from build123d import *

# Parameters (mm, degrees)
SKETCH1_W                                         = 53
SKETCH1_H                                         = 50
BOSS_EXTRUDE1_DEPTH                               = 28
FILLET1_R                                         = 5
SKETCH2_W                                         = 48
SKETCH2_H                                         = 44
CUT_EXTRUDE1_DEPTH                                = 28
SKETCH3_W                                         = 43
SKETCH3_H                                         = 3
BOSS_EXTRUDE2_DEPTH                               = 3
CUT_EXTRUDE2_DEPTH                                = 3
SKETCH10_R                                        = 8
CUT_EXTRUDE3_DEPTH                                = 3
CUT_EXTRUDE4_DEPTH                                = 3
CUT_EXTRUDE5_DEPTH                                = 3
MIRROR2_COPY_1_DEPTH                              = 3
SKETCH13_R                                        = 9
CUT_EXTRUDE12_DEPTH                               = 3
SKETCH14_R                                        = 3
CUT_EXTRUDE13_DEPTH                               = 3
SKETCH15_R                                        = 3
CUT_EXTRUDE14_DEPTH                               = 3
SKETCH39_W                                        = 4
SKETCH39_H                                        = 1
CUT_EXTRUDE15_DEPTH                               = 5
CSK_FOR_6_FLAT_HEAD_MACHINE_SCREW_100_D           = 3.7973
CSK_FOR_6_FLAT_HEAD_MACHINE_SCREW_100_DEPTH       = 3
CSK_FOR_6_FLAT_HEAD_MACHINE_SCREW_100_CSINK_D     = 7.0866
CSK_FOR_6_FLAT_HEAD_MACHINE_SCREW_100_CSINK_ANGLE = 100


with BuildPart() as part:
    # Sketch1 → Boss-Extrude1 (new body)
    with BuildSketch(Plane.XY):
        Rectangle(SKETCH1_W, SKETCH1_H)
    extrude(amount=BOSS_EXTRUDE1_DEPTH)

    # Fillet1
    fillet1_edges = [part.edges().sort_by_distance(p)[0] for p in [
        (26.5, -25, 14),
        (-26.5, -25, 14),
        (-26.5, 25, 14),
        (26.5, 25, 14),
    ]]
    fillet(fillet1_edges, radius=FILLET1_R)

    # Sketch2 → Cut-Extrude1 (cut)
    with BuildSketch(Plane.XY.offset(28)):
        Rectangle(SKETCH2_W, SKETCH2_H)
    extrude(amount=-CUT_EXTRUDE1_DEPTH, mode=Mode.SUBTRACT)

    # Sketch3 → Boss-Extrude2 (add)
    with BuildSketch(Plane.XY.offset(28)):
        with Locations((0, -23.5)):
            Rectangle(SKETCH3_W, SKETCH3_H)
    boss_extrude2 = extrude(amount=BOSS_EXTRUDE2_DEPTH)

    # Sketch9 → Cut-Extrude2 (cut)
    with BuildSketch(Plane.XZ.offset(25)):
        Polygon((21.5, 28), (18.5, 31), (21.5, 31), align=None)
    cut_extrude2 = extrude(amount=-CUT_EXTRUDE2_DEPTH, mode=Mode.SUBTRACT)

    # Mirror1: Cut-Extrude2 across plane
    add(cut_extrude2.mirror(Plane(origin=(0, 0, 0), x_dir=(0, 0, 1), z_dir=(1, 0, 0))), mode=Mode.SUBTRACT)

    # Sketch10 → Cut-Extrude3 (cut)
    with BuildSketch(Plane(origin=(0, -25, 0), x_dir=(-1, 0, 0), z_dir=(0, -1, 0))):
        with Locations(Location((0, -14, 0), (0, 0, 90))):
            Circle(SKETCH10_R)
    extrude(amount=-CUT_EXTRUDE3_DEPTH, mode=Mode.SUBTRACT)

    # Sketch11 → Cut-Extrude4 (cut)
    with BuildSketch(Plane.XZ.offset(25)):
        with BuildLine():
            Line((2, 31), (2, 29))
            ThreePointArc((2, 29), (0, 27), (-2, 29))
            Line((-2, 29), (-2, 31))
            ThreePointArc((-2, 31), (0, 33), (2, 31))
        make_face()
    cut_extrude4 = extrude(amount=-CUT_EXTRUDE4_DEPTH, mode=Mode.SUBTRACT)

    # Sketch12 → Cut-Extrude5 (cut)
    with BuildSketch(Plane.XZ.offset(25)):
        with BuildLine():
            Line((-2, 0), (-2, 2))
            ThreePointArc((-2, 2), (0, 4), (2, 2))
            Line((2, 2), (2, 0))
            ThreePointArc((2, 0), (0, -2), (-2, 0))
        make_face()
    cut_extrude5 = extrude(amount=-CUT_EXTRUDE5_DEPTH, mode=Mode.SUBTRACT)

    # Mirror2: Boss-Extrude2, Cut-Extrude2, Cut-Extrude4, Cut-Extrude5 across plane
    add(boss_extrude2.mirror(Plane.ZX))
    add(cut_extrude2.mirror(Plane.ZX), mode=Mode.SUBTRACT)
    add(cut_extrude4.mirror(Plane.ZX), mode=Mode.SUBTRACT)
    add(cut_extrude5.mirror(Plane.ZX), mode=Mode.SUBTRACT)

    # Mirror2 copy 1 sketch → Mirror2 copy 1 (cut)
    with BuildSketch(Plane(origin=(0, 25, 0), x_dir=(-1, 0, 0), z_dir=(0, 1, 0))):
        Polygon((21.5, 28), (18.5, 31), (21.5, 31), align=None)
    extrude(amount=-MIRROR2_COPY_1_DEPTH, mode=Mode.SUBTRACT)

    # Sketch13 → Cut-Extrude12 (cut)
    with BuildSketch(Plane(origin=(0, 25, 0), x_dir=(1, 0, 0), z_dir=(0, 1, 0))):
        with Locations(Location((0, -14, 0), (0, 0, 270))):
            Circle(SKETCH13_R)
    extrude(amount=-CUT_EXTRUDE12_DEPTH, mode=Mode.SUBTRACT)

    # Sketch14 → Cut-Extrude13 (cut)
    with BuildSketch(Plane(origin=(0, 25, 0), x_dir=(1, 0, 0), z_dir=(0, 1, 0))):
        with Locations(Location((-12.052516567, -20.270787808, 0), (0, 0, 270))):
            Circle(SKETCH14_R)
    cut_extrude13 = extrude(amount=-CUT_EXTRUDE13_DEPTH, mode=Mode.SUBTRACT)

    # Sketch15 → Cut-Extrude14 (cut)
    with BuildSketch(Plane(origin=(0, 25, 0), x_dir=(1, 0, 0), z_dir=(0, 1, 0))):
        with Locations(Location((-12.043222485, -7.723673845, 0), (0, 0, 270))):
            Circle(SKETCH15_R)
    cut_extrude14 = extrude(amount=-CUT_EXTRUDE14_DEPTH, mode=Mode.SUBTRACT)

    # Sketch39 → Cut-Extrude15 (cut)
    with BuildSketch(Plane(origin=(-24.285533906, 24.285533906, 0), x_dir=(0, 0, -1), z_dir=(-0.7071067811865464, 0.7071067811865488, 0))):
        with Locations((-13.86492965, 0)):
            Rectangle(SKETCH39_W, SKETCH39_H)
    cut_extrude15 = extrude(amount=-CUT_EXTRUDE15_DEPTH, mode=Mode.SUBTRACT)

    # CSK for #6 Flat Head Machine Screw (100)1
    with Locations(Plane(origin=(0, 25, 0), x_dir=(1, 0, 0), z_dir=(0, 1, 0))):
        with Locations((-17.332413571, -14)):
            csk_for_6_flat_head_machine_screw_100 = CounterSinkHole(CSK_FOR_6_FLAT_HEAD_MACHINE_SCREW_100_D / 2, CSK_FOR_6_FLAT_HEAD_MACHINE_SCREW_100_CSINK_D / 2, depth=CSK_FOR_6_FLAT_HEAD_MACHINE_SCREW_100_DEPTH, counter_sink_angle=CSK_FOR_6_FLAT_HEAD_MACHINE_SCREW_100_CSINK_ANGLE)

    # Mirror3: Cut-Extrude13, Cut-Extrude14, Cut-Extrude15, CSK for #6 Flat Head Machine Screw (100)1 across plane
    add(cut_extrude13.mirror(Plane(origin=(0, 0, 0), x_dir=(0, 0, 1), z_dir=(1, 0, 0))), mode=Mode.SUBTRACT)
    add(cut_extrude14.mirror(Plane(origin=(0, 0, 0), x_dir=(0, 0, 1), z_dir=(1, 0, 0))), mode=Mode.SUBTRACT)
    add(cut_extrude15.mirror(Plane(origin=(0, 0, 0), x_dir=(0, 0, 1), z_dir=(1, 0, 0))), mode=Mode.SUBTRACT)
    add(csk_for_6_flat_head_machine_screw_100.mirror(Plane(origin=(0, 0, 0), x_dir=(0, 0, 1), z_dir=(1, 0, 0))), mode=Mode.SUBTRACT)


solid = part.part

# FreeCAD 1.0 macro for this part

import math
import FreeCAD as App
import Part
import Sketcher

V = App.Vector


def edges_at(feature, points):
    """Names of the edges that pass closest to the given points."""
    edges = feature.Shape.Edges
    near = lambda p: min(range(len(edges)), key=lambda i: edges[i].distToShape(Part.Vertex(*p))[0])
    return sorted({f"Edge{near(p) + 1}" for p in points})

doc = App.newDocument("Part")
params = doc.addObject("Spreadsheet::Sheet", "Params")
for row, (alias, value) in enumerate([
    ("sketch1_width", "53 mm"),
    ("sketch1_height", "50 mm"),
    ("pad1_length", "28 mm"),
    ("fillet_radius", "5 mm"),
    ("sketch2_width", "48 mm"),
    ("sketch2_height", "44 mm"),
    ("pocket1_length", "28 mm"),
    ("sketch3_width", "43 mm"),
    ("sketch3_height", "3 mm"),
    ("pad2_length", "3 mm"),
    ("sketch4_width", "3 mm"),
    ("pocket2_length", "3 mm"),
    ("sketch5_diameter", "16 mm"),
    ("pocket3_length", "3 mm"),
    ("sketch6_radius", "2 mm"),
    ("sketch6_height", "2 mm"),
    ("pocket4_length", "3 mm"),
    ("sketch7_radius", "2 mm"),
    ("sketch7_height", "2 mm"),
    ("pocket5_length", "3 mm"),
    ("sketch8_width", "3 mm"),
    ("pocket6_length", "3 mm"),
    ("sketch9_diameter", "18 mm"),
    ("pocket7_length", "3 mm"),
    ("sketch10_diameter", "6 mm"),
    ("pocket8_length", "3 mm"),
    ("sketch11_diameter", "6 mm"),
    ("pocket9_length", "3 mm"),
    ("sketch12_width", "4 mm"),
    ("sketch12_height", "1 mm"),
    ("pocket10_length", "5 mm"),
    ("hole_diameter", "3.7973 mm"),
    ("hole_depth", "3 mm"),
    ("hole_csink_diameter", "7.0866 mm"),
], start=1):
    params.set(f"A{row}", alias)
    params.set(f"B{row}", "=" + value)
    params.setAlias(f"B{row}", alias)

body = doc.addObject("PartDesign::Body", "Body")

sketch1 = body.newObject("Sketcher::SketchObject", "Sketch")
sketch1.AttachmentSupport = (doc.getObject("XY_Plane"), [""])
sketch1.MapMode = "FlatFace"
sketch1.addGeometry([
    Part.LineSegment(V(-26, 25, 0), V(-26, -25, 0)),
    Part.LineSegment(V(-26, -25, 0), V(26, -25, 0)),
    Part.LineSegment(V(26, -25, 0), V(26, 25, 0)),
    Part.LineSegment(V(26, 25, 0), V(-26, 25, 0)),
], False)
sketch1.addConstraint([
    Sketcher.Constraint("Coincident", 0, 2, 1, 1),
    Sketcher.Constraint("Coincident", 1, 2, 2, 1),
    Sketcher.Constraint("Coincident", 2, 2, 3, 1),
    Sketcher.Constraint("Coincident", 3, 2, 0, 1),
    Sketcher.Constraint("Vertical", 0),
    Sketcher.Constraint("Horizontal", 1),
    Sketcher.Constraint("Vertical", 2),
    Sketcher.Constraint("Horizontal", 3),
    Sketcher.Constraint("Symmetric", 0, 2, 2, 2, -1, 1),
    Sketcher.Constraint("DistanceX", 1, 1, 1, 2, 53.0),
    Sketcher.Constraint("DistanceY", 0, 2, 0, 1, 50.0),
])
sketch1.setExpression("Constraints[9]", "Params.sketch1_width")
sketch1.setExpression("Constraints[10]", "Params.sketch1_height")
pad1 = body.newObject("PartDesign::Pad", "Pad")
pad1.Profile = sketch1
pad1.setExpression("Length", "Params.pad1_length")
doc.recompute()

fillet = body.newObject("PartDesign::Fillet", "Fillet")
fillet.Base = (pad1, edges_at(pad1, [
    (26.5, -25, 14),
    (-26.5, -25, 14),
    (-26.5, 25, 14),
    (26.5, 25, 14),
]))
fillet.setExpression("Radius", "Params.fillet_radius")

sketch2 = body.newObject("Sketcher::SketchObject", "Sketch001")
sketch2.AttachmentSupport = (doc.getObject("XY_Plane"), [""])
sketch2.MapMode = "FlatFace"
sketch2.AttachmentOffset = App.Placement(V(0, 0, 28), App.Rotation())
sketch2.addGeometry([
    Part.LineSegment(V(-24, 22, 0), V(-24, -22, 0)),
    Part.LineSegment(V(-24, -22, 0), V(24, -22, 0)),
    Part.LineSegment(V(24, -22, 0), V(24, 22, 0)),
    Part.LineSegment(V(24, 22, 0), V(-24, 22, 0)),
], False)
sketch2.addConstraint([
    Sketcher.Constraint("Coincident", 0, 2, 1, 1),
    Sketcher.Constraint("Coincident", 1, 2, 2, 1),
    Sketcher.Constraint("Coincident", 2, 2, 3, 1),
    Sketcher.Constraint("Coincident", 3, 2, 0, 1),
    Sketcher.Constraint("Vertical", 0),
    Sketcher.Constraint("Horizontal", 1),
    Sketcher.Constraint("Vertical", 2),
    Sketcher.Constraint("Horizontal", 3),
    Sketcher.Constraint("Symmetric", 0, 2, 2, 2, -1, 1),
    Sketcher.Constraint("DistanceX", 1, 1, 1, 2, 48.0),
    Sketcher.Constraint("DistanceY", 0, 2, 0, 1, 44.0),
])
sketch2.setExpression("Constraints[9]", "Params.sketch2_width")
sketch2.setExpression("Constraints[10]", "Params.sketch2_height")
pocket1 = body.newObject("PartDesign::Pocket", "Pocket")
pocket1.Profile = sketch2
pocket1.setExpression("Length", "Params.pocket1_length")

sketch3 = body.newObject("Sketcher::SketchObject", "Sketch002")
sketch3.AttachmentSupport = (doc.getObject("XY_Plane"), [""])
sketch3.MapMode = "FlatFace"
sketch3.AttachmentOffset = App.Placement(V(0, 0, 28), App.Rotation())
sketch3.addGeometry([
    Part.LineSegment(V(-21.5, -22, 0), V(-21.5, -25, 0)),
    Part.LineSegment(V(-21.5, -25, 0), V(21.5, -25, 0)),
    Part.LineSegment(V(21.5, -25, 0), V(21.5, -22, 0)),
    Part.LineSegment(V(21.5, -22, 0), V(-21.5, -22, 0)),
], False)
sketch3.addConstraint([
    Sketcher.Constraint("Coincident", 0, 2, 1, 1),
    Sketcher.Constraint("Coincident", 1, 2, 2, 1),
    Sketcher.Constraint("Coincident", 2, 2, 3, 1),
    Sketcher.Constraint("Coincident", 3, 2, 0, 1),
    Sketcher.Constraint("Vertical", 0),
    Sketcher.Constraint("Horizontal", 1),
    Sketcher.Constraint("Vertical", 2),
    Sketcher.Constraint("Horizontal", 3),
    Sketcher.Constraint("DistanceX", 1, 1, 1, 2, 43.0),
    Sketcher.Constraint("DistanceY", 0, 2, 0, 1, 3.0),
    Sketcher.Constraint("DistanceY", 0, 2, -1, 1, 25.0),
    Sketcher.Constraint("DistanceX", 0, 2, -1, 1, 21.5),
])
sketch3.setExpression("Constraints[8]", "Params.sketch3_width")
sketch3.setExpression("Constraints[9]", "Params.sketch3_height")
pad2 = body.newObject("PartDesign::Pad", "Pad001")
pad2.Profile = sketch3
pad2.setExpression("Length", "Params.pad2_length")

sketch4 = body.newObject("Sketcher::SketchObject", "Sketch003")
sketch4.AttachmentSupport = (doc.getObject("XZ_Plane"), [""])
sketch4.MapMode = "FlatFace"
sketch4.AttachmentOffset = App.Placement(V(0, 0, 25), App.Rotation())
sketch4.addGeometry([
    Part.LineSegment(V(18.5, 31, 0), V(21.5, 28, 0)),
    Part.LineSegment(V(21.5, 28, 0), V(21.5, 31, 0)),
    Part.LineSegment(V(21.5, 31, 0), V(18.5, 31, 0)),
], False)
sketch4.addConstraint([
    Sketcher.Constraint("Coincident", 0, 2, 1, 1),
    Sketcher.Constraint("Coincident", 1, 2, 2, 1),
    Sketcher.Constraint("Coincident", 2, 2, 0, 1),
    Sketcher.Constraint("Vertical", 1),
    Sketcher.Constraint("Horizontal", 2),
    Sketcher.Constraint("Equal", 2, 1),
    Sketcher.Constraint("DistanceX", 2, 2, 2, 1, 3.0),
    Sketcher.Constraint("DistanceY", -1, 1, 0, 2, 28.0),
    Sketcher.Constraint("DistanceX", -1, 1, 0, 2, 21.5),
])
sketch4.setExpression("Constraints[6]", "Params.sketch4_width")
pocket2 = body.newObject("PartDesign::Pocket", "Pocket001")
pocket2.Profile = sketch4
pocket2.setExpression("Length", "Params.pocket2_length")
doc.recompute()

mirrored = body.newObject("PartDesign::Mirrored", "Mirrored")
mirrored.Originals = [pocket2]
mirrored.MirrorPlane = (doc.getObject("YZ_Plane"), [""])
body.Tip = mirrored

sketch5 = body.newObject("Sketcher::SketchObject", "Sketch004")
sketch5.AttachmentSupport = (doc.getObject("XZ_Plane"), [""])
sketch5.MapMode = "FlatFace"
sketch5.AttachmentOffset = App.Placement(V(0, 0, 25), App.Rotation())
sketch5.addGeometry(Part.Circle(V(0, 14, 0), V(0, 0, 1), 8), False)
sketch5.addConstraint([
    Sketcher.Constraint("PointOnObject", 0, 3, -2),
    Sketcher.Constraint("Diameter", 0, 16.0),
    Sketcher.Constraint("DistanceY", -1, 1, 0, 3, 14.0),
])
sketch5.setExpression("Constraints[1]", "Params.sketch5_diameter")
pocket3 = body.newObject("PartDesign::Pocket", "Pocket002")
pocket3.Profile = sketch5
pocket3.setExpression("Length", "Params.pocket3_length")

sketch6 = body.newObject("Sketcher::SketchObject", "Sketch005")
sketch6.AttachmentSupport = (doc.getObject("XZ_Plane"), [""])
sketch6.MapMode = "FlatFace"
sketch6.AttachmentOffset = App.Placement(V(0, 0, 25), App.Rotation())
sketch6.addGeometry([
    Part.LineSegment(V(2, 29, 0), V(2, 31, 0)),
    Part.ArcOfCircle(Part.Circle(V(0, 31, 0), V(0, 0, 1), 2), math.radians(0), math.radians(180)),
    Part.LineSegment(V(-2, 31, 0), V(-2, 29, 0)),
    Part.ArcOfCircle(Part.Circle(V(0, 29, 0), V(0, 0, 1), 2), math.radians(180), math.radians(360)),
], False)
sketch6.addConstraint([
    Sketcher.Constraint("Tangent", 0, 2, 1, 1),
    Sketcher.Constraint("Tangent", 1, 2, 2, 1),
    Sketcher.Constraint("Tangent", 2, 2, 3, 1),
    Sketcher.Constraint("Tangent", 3, 2, 0, 1),
    Sketcher.Constraint("Vertical", 0),
    Sketcher.Constraint("Vertical", 2),
    Sketcher.Constraint("PointOnObject", 1, 3, -2),
    Sketcher.Constraint("Radius", 1, 2.0),
    Sketcher.Constraint("DistanceY", 0, 1, 0, 2, 2.0),
    Sketcher.Constraint("DistanceY", -1, 1, 1, 3, 31.0),
])
sketch6.setExpression("Constraints[7]", "Params.sketch6_radius")
sketch6.setExpression("Constraints[8]", "Params.sketch6_height")
pocket4 = body.newObject("PartDesign::Pocket", "Pocket003")
pocket4.Profile = sketch6
pocket4.setExpression("Length", "Params.pocket4_length")

sketch7 = body.newObject("Sketcher::SketchObject", "Sketch006")
sketch7.AttachmentSupport = (doc.getObject("XZ_Plane"), [""])
sketch7.MapMode = "FlatFace"
sketch7.AttachmentOffset = App.Placement(V(0, 0, 25), App.Rotation())
sketch7.addGeometry([
    Part.LineSegment(V(-2, 2, 0), V(-2, 0, 0)),
    Part.ArcOfCircle(Part.Circle(V(0, 0, 0), V(0, 0, 1), 2), math.radians(180), math.radians(360)),
    Part.LineSegment(V(2, 0, 0), V(2, 2, 0)),
    Part.ArcOfCircle(Part.Circle(V(0, 2, 0), V(0, 0, 1), 2), math.radians(0), math.radians(180)),
], False)
sketch7.addConstraint([
    Sketcher.Constraint("Tangent", 0, 2, 1, 1),
    Sketcher.Constraint("Tangent", 1, 2, 2, 1),
    Sketcher.Constraint("Tangent", 2, 2, 3, 1),
    Sketcher.Constraint("Tangent", 3, 2, 0, 1),
    Sketcher.Constraint("Vertical", 0),
    Sketcher.Constraint("Vertical", 2),
    Sketcher.Constraint("Coincident", 1, 3, -1, 1),
    Sketcher.Constraint("Radius", 1, 2.0),
    Sketcher.Constraint("DistanceY", 0, 2, 0, 1, 2.0),
])
sketch7.setExpression("Constraints[7]", "Params.sketch7_radius")
sketch7.setExpression("Constraints[8]", "Params.sketch7_height")
pocket5 = body.newObject("PartDesign::Pocket", "Pocket004")
pocket5.Profile = sketch7
pocket5.setExpression("Length", "Params.pocket5_length")
doc.recompute()

mirrored2 = body.newObject("PartDesign::Mirrored", "Mirrored001")
mirrored2.Originals = [pad2, pocket2, pocket4, pocket5]
mirrored2.MirrorPlane = (doc.getObject("XZ_Plane"), [""])
body.Tip = mirrored2

sketch8 = body.newObject("Sketcher::SketchObject", "Sketch007")
sketch8.AttachmentSupport = (doc.getObject("XZ_Plane"), [""])
sketch8.MapMode = "FlatFace"
sketch8.AttachmentOffset = App.Placement(V(0, 0, -25), App.Rotation())
sketch8.addGeometry([
    Part.LineSegment(V(-18.5, 31, 0), V(-21.5, 28, 0)),
    Part.LineSegment(V(-21.5, 28, 0), V(-21.5, 31, 0)),
    Part.LineSegment(V(-21.5, 31, 0), V(-18.5, 31, 0)),
], False)
sketch8.addConstraint([
    Sketcher.Constraint("Coincident", 0, 2, 1, 1),
    Sketcher.Constraint("Coincident", 1, 2, 2, 1),
    Sketcher.Constraint("Coincident", 2, 2, 0, 1),
    Sketcher.Constraint("Vertical", 1),
    Sketcher.Constraint("Horizontal", 2),
    Sketcher.Constraint("Equal", 2, 1),
    Sketcher.Constraint("DistanceX", 2, 1, 2, 2, 3.0),
    Sketcher.Constraint("DistanceY", -1, 1, 0, 2, 28.0),
    Sketcher.Constraint("DistanceX", 0, 2, -1, 1, 21.5),
])
sketch8.setExpression("Constraints[6]", "Params.sketch8_width")
pocket6 = body.newObject("PartDesign::Pocket", "Pocket005")
pocket6.Profile = sketch8
pocket6.setExpression("Length", "Params.pocket6_length")
pocket6.Reversed = True

sketch9 = body.newObject("Sketcher::SketchObject", "Sketch008")
sketch9.AttachmentSupport = (doc.getObject("XZ_Plane"), [""])
sketch9.MapMode = "FlatFace"
sketch9.AttachmentOffset = App.Placement(V(0, 0, -25), App.Rotation())
sketch9.addGeometry(Part.Circle(V(0, 14, 0), V(0, 0, 1), 9), False)
sketch9.addConstraint([
    Sketcher.Constraint("PointOnObject", 0, 3, -2),
    Sketcher.Constraint("Diameter", 0, 18.0),
    Sketcher.Constraint("DistanceY", -1, 1, 0, 3, 14.0),
])
sketch9.setExpression("Constraints[1]", "Params.sketch9_diameter")
pocket7 = body.newObject("PartDesign::Pocket", "Pocket006")
pocket7.Profile = sketch9
pocket7.setExpression("Length", "Params.pocket7_length")
pocket7.Reversed = True

sketch10 = body.newObject("Sketcher::SketchObject", "Sketch009")
sketch10.AttachmentSupport = (doc.getObject("XZ_Plane"), [""])
sketch10.MapMode = "FlatFace"
sketch10.AttachmentOffset = App.Placement(V(0, 0, -25), App.Rotation())
sketch10.addGeometry(Part.Circle(V(-12.1, 20.3, 0), V(0, 0, 1), 3), False)
sketch10.addConstraint([
    Sketcher.Constraint("Diameter", 0, 6.0),
    Sketcher.Constraint("DistanceX", 0, 3, -1, 1, 12.052517),
    Sketcher.Constraint("DistanceY", -1, 1, 0, 3, 20.270788),
])
sketch10.setExpression("Constraints[0]", "Params.sketch10_diameter")
pocket8 = body.newObject("PartDesign::Pocket", "Pocket007")
pocket8.Profile = sketch10
pocket8.setExpression("Length", "Params.pocket8_length")
pocket8.Reversed = True

sketch11 = body.newObject("Sketcher::SketchObject", "Sketch010")
sketch11.AttachmentSupport = (doc.getObject("XZ_Plane"), [""])
sketch11.MapMode = "FlatFace"
sketch11.AttachmentOffset = App.Placement(V(0, 0, -25), App.Rotation())
sketch11.addGeometry(Part.Circle(V(-12, 7.7, 0), V(0, 0, 1), 3), False)
sketch11.addConstraint([
    Sketcher.Constraint("Diameter", 0, 6.0),
    Sketcher.Constraint("DistanceX", 0, 3, -1, 1, 12.043222),
    Sketcher.Constraint("DistanceY", -1, 1, 0, 3, 7.723674),
])
sketch11.setExpression("Constraints[0]", "Params.sketch11_diameter")
pocket9 = body.newObject("PartDesign::Pocket", "Pocket008")
pocket9.Profile = sketch11
pocket9.setExpression("Length", "Params.pocket9_length")
pocket9.Reversed = True

sketch12 = body.newObject("Sketcher::SketchObject", "Sketch011")
sketch12.Placement = App.Placement(V(-24.285534, 24.285534, 0), App.Rotation(V(0, 0, -1), V(-0.707106781, -0.707106781, 0), V(-0.707106781, 0.707106781, 0), "ZXY"))
sketch12.addGeometry([
    Part.LineSegment(V(-15.9, 0.5, 0), V(-15.9, -0.5, 0)),
    Part.LineSegment(V(-15.9, -0.5, 0), V(-11.9, -0.5, 0)),
    Part.LineSegment(V(-11.9, -0.5, 0), V(-11.9, 0.5, 0)),
    Part.LineSegment(V(-11.9, 0.5, 0), V(-15.9, 0.5, 0)),
], False)
sketch12.addConstraint([
    Sketcher.Constraint("Coincident", 0, 2, 1, 1),
    Sketcher.Constraint("Coincident", 1, 2, 2, 1),
    Sketcher.Constraint("Coincident", 2, 2, 3, 1),
    Sketcher.Constraint("Coincident", 3, 2, 0, 1),
    Sketcher.Constraint("Vertical", 0),
    Sketcher.Constraint("Horizontal", 1),
    Sketcher.Constraint("Vertical", 2),
    Sketcher.Constraint("Horizontal", 3),
    Sketcher.Constraint("DistanceX", 1, 1, 1, 2, 4.0),
    Sketcher.Constraint("DistanceY", 0, 2, 0, 1, 1.0),
    Sketcher.Constraint("DistanceY", 0, 2, -1, 1, 0.5),
    Sketcher.Constraint("DistanceX", 0, 2, -1, 1, 15.86493),
])
sketch12.setExpression("Constraints[8]", "Params.sketch12_width")
sketch12.setExpression("Constraints[9]", "Params.sketch12_height")
pocket10 = body.newObject("PartDesign::Pocket", "Pocket009")
pocket10.Profile = sketch12
pocket10.setExpression("Length", "Params.pocket10_length")

sketch13 = body.newObject("Sketcher::SketchObject", "Sketch012")
sketch13.AttachmentSupport = (doc.getObject("XZ_Plane"), [""])
sketch13.MapMode = "FlatFace"
sketch13.AttachmentOffset = App.Placement(V(0, 0, -25), App.Rotation())
sketch13.addGeometry(Part.Circle(V(-17.3, 14, 0), V(0, 0, 1), 1.9), False)
sketch13.addConstraint([
    Sketcher.Constraint("DistanceY", -1, 1, 0, 3, 14.0),
    Sketcher.Constraint("Diameter", 0, 3.7973),
    Sketcher.Constraint("DistanceX", 0, 3, -1, 1, 17.332414),
])
doc.recompute()
hole = body.newObject("PartDesign::Hole", "Hole")
hole.Profile = sketch13
hole.ThreadType = "None"
hole.setExpression("Diameter", "Params.hole_diameter")
hole.DepthType = "Dimension"
hole.setExpression("Depth", "Params.hole_depth")
hole.DrillPoint = "Flat"
hole.HoleCutType = "Countersink"
hole.setExpression("HoleCutDiameter", "Params.hole_csink_diameter")
hole.HoleCutCountersinkAngle = 100
hole.Reversed = True
doc.recompute()

mirrored3 = body.newObject("PartDesign::Mirrored", "Mirrored002")
mirrored3.Originals = [pocket8, pocket9, pocket10, hole]
mirrored3.MirrorPlane = (doc.getObject("YZ_Plane"), [""])
body.Tip = mirrored3

doc.recompute()
